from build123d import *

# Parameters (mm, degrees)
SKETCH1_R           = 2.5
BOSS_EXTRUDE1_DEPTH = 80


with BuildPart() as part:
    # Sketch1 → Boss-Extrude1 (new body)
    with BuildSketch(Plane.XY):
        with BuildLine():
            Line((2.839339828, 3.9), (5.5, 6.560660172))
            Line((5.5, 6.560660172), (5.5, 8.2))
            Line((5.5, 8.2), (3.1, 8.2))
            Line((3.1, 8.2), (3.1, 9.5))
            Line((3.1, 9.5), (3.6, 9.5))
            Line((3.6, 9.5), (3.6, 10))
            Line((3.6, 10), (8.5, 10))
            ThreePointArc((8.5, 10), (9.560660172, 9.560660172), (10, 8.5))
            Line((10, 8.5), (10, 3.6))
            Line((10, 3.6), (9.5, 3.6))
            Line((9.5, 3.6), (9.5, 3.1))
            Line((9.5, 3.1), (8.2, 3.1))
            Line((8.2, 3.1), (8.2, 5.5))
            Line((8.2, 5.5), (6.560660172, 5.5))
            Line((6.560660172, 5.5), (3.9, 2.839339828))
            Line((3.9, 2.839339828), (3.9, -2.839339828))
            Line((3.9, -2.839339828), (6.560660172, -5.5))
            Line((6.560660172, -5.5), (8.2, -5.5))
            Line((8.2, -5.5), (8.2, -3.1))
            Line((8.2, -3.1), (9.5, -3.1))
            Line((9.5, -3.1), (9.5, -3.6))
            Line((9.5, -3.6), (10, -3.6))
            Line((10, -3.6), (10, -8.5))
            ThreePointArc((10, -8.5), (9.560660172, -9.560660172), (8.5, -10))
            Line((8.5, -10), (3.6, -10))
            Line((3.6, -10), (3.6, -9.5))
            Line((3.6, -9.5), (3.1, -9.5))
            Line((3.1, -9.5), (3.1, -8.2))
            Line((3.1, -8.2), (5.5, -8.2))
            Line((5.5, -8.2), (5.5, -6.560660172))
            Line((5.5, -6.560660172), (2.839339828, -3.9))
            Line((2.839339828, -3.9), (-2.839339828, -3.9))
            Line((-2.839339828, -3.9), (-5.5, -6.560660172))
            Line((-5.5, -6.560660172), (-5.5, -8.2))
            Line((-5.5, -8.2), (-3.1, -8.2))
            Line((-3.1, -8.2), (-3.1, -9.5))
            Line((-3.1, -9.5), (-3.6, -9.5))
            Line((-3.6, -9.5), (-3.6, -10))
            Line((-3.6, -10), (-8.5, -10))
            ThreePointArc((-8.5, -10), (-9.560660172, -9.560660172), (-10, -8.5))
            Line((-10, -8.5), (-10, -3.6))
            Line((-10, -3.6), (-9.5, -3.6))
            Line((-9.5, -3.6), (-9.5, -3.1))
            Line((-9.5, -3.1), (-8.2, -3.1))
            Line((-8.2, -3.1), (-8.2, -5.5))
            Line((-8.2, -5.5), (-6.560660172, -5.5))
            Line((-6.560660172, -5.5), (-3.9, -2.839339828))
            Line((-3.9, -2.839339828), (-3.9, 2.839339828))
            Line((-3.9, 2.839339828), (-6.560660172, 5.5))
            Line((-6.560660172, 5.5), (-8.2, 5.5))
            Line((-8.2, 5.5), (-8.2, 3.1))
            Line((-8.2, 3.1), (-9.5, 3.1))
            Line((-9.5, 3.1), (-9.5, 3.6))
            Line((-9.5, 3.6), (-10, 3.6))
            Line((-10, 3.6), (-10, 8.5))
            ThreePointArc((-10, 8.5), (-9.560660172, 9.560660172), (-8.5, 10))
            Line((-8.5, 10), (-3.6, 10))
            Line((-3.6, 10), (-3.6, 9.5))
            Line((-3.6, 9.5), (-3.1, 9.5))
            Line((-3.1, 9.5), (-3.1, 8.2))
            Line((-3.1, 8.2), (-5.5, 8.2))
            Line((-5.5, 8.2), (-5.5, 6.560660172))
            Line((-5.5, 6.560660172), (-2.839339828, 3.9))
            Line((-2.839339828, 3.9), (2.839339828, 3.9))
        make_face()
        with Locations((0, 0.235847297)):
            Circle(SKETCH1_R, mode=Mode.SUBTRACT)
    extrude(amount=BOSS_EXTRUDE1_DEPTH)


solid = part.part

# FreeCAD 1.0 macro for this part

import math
import FreeCAD as App
import Part
import Sketcher
from FreeCAD import Vector
Q = App.Units.Quantity

doc = App.newDocument("Part")
body = doc.addObject("PartDesign::Body", "Body")

sketch1 = body.newObject("Sketcher::SketchObject", "Sketch")
sketch1.AttachmentSupport = (doc.getObject("XY_Plane"), [""])
sketch1.MapMode = "FlatFace"
sketch1.addGeometry([
    Part.LineSegment(Vector(5.5, 6.6, 0), Vector(2.8, 3.9, 0)),
    Part.LineSegment(Vector(2.8, 3.9, 0), Vector(-2.8, 3.9, 0)),
    Part.LineSegment(Vector(-2.8, 3.9, 0), Vector(-5.5, 6.6, 0)),
    Part.LineSegment(Vector(-5.5, 6.6, 0), Vector(-5.5, 8.2, 0)),
    Part.LineSegment(Vector(-5.5, 8.2, 0), Vector(-3.1, 8.2, 0)),
    Part.LineSegment(Vector(-3.1, 8.2, 0), Vector(-3.1, 9.5, 0)),
    Part.LineSegment(Vector(-3.1, 9.5, 0), Vector(-3.6, 9.5, 0)),
    Part.LineSegment(Vector(-3.6, 9.5, 0), Vector(-3.6, 10, 0)),
    Part.LineSegment(Vector(-3.6, 10, 0), Vector(-8.5, 10, 0)),
    Part.ArcOfCircle(Part.Circle(Vector(-8.5, 8.5, 0), Vector(0, 0, 1), 1.5), math.radians(90), math.radians(180)),
    Part.LineSegment(Vector(-10, 8.5, 0), Vector(-10, 3.6, 0)),
    Part.LineSegment(Vector(-10, 3.6, 0), Vector(-9.5, 3.6, 0)),
    Part.LineSegment(Vector(-9.5, 3.6, 0), Vector(-9.5, 3.1, 0)),
    Part.LineSegment(Vector(-9.5, 3.1, 0), Vector(-8.2, 3.1, 0)),
    Part.LineSegment(Vector(-8.2, 3.1, 0), Vector(-8.2, 5.5, 0)),
    Part.LineSegment(Vector(-8.2, 5.5, 0), Vector(-6.6, 5.5, 0)),
    Part.LineSegment(Vector(-6.6, 5.5, 0), Vector(-3.9, 2.8, 0)),
    Part.LineSegment(Vector(-3.9, 2.8, 0), Vector(-3.9, -2.8, 0)),
    Part.LineSegment(Vector(-3.9, -2.8, 0), Vector(-6.6, -5.5, 0)),
    Part.LineSegment(Vector(-6.6, -5.5, 0), Vector(-8.2, -5.5, 0)),
    Part.LineSegment(Vector(-8.2, -5.5, 0), Vector(-8.2, -3.1, 0)),
    Part.LineSegment(Vector(-8.2, -3.1, 0), Vector(-9.5, -3.1, 0)),
    Part.LineSegment(Vector(-9.5, -3.1, 0), Vector(-9.5, -3.6, 0)),
    Part.LineSegment(Vector(-9.5, -3.6, 0), Vector(-10, -3.6, 0)),
    Part.LineSegment(Vector(-10, -3.6, 0), Vector(-10, -8.5, 0)),
    Part.ArcOfCircle(Part.Circle(Vector(-8.5, -8.5, 0), Vector(0, 0, 1), 1.5), math.radians(180), math.radians(270)),
    Part.LineSegment(Vector(-8.5, -10, 0), Vector(-3.6, -10, 0)),
    Part.LineSegment(Vector(-3.6, -10, 0), Vector(-3.6, -9.5, 0)),
    Part.LineSegment(Vector(-3.6, -9.5, 0), Vector(-3.1, -9.5, 0)),
    Part.LineSegment(Vector(-3.1, -9.5, 0), Vector(-3.1, -8.2, 0)),
    Part.LineSegment(Vector(-3.1, -8.2, 0), Vector(-5.5, -8.2, 0)),
    Part.LineSegment(Vector(-5.5, -8.2, 0), Vector(-5.5, -6.6, 0)),
    Part.LineSegment(Vector(-5.5, -6.6, 0), Vector(-2.8, -3.9, 0)),
    Part.LineSegment(Vector(-2.8, -3.9, 0), Vector(2.8, -3.9, 0)),
    Part.LineSegment(Vector(2.8, -3.9, 0), Vector(5.5, -6.6, 0)),
    Part.LineSegment(Vector(5.5, -6.6, 0), Vector(5.5, -8.2, 0)),
    Part.LineSegment(Vector(5.5, -8.2, 0), Vector(3.1, -8.2, 0)),
    Part.LineSegment(Vector(3.1, -8.2, 0), Vector(3.1, -9.5, 0)),
    Part.LineSegment(Vector(3.1, -9.5, 0), Vector(3.6, -9.5, 0)),
    Part.LineSegment(Vector(3.6, -9.5, 0), Vector(3.6, -10, 0)),
    Part.LineSegment(Vector(3.6, -10, 0), Vector(8.5, -10, 0)),
    Part.ArcOfCircle(Part.Circle(Vector(8.5, -8.5, 0), Vector(0, 0, 1), 1.5), math.radians(-90), math.radians(0)),
    Part.LineSegment(Vector(10, -8.5, 0), Vector(10, -3.6, 0)),
    Part.LineSegment(Vector(10, -3.6, 0), Vector(9.5, -3.6, 0)),
    Part.LineSegment(Vector(9.5, -3.6, 0), Vector(9.5, -3.1, 0)),
    Part.LineSegment(Vector(9.5, -3.1, 0), Vector(8.2, -3.1, 0)),
    Part.LineSegment(Vector(8.2, -3.1, 0), Vector(8.2, -5.5, 0)),
    Part.LineSegment(Vector(8.2, -5.5, 0), Vector(6.6, -5.5, 0)),
    Part.LineSegment(Vector(6.6, -5.5, 0), Vector(3.9, -2.8, 0)),
    Part.LineSegment(Vector(3.9, -2.8, 0), Vector(3.9, 2.8, 0)),
    Part.LineSegment(Vector(3.9, 2.8, 0), Vector(6.6, 5.5, 0)),
    Part.LineSegment(Vector(6.6, 5.5, 0), Vector(8.2, 5.5, 0)),
    Part.LineSegment(Vector(8.2, 5.5, 0), Vector(8.2, 3.1, 0)),
    Part.LineSegment(Vector(8.2, 3.1, 0), Vector(9.5, 3.1, 0)),
    Part.LineSegment(Vector(9.5, 3.1, 0), Vector(9.5, 3.6, 0)),
    Part.LineSegment(Vector(9.5, 3.6, 0), Vector(10, 3.6, 0)),
    Part.LineSegment(Vector(10, 3.6, 0), Vector(10, 8.5, 0)),
    Part.ArcOfCircle(Part.Circle(Vector(8.5, 8.5, 0), Vector(0, 0, 1), 1.5), math.radians(0), math.radians(90)),
    Part.LineSegment(Vector(8.5, 10, 0), Vector(3.6, 10, 0)),
    Part.LineSegment(Vector(3.6, 10, 0), Vector(3.6, 9.5, 0)),
    Part.LineSegment(Vector(3.6, 9.5, 0), Vector(3.1, 9.5, 0)),
    Part.LineSegment(Vector(3.1, 9.5, 0), Vector(3.1, 8.2, 0)),
    Part.LineSegment(Vector(3.1, 8.2, 0), Vector(5.5, 8.2, 0)),
    Part.LineSegment(Vector(5.5, 8.2, 0), Vector(5.5, 6.6, 0)),
    Part.Circle(Vector(0, 0.2, 0), Vector(0, 0, 1), 2.5),
], False)
sketch1.addConstraint([
    Sketcher.Constraint("Coincident", 0, 2, 1, 1),
    Sketcher.Constraint("Coincident", 1, 2, 2, 1),
    Sketcher.Constraint("Coincident", 2, 2, 3, 1),
    Sketcher.Constraint("Coincident", 3, 2, 4, 1),
    Sketcher.Constraint("Coincident", 4, 2, 5, 1),
    Sketcher.Constraint("Coincident", 5, 2, 6, 1),
    Sketcher.Constraint("Coincident", 6, 2, 7, 1),
    Sketcher.Constraint("Coincident", 7, 2, 8, 1),
    Sketcher.Constraint("Tangent", 8, 2, 9, 1),
    Sketcher.Constraint("Tangent", 9, 2, 10, 1),
    Sketcher.Constraint("Coincident", 10, 2, 11, 1),
    Sketcher.Constraint("Coincident", 11, 2, 12, 1),
    Sketcher.Constraint("Coincident", 12, 2, 13, 1),
    Sketcher.Constraint("Coincident", 13, 2, 14, 1),
    Sketcher.Constraint("Coincident", 14, 2, 15, 1),
    Sketcher.Constraint("Coincident", 15, 2, 16, 1),
    Sketcher.Constraint("Coincident", 16, 2, 17, 1),
    Sketcher.Constraint("Coincident", 17, 2, 18, 1),
    Sketcher.Constraint("Coincident", 18, 2, 19, 1),
    Sketcher.Constraint("Coincident", 19, 2, 20, 1),
    Sketcher.Constraint("Coincident", 20, 2, 21, 1),
    Sketcher.Constraint("Coincident", 21, 2, 22, 1),
    Sketcher.Constraint("Coincident", 22, 2, 23, 1),
    Sketcher.Constraint("Coincident", 23, 2, 24, 1),
    Sketcher.Constraint("Tangent", 24, 2, 25, 1),
    Sketcher.Constraint("Tangent", 25, 2, 26, 1),
    Sketcher.Constraint("Coincident", 26, 2, 27, 1),
    Sketcher.Constraint("Coincident", 27, 2, 28, 1),
    Sketcher.Constraint("Coincident", 28, 2, 29, 1),
    Sketcher.Constraint("Coincident", 29, 2, 30, 1),
    Sketcher.Constraint("Coincident", 30, 2, 31, 1),
    Sketcher.Constraint("Coincident", 31, 2, 32, 1),
    Sketcher.Constraint("Coincident", 32, 2, 33, 1),
    Sketcher.Constraint("Coincident", 33, 2, 34, 1),
    Sketcher.Constraint("Coincident", 34, 2, 35, 1),
    Sketcher.Constraint("Coincident", 35, 2, 36, 1),
    Sketcher.Constraint("Coincident", 36, 2, 37, 1),
    Sketcher.Constraint("Coincident", 37, 2, 38, 1),
    Sketcher.Constraint("Coincident", 38, 2, 39, 1),
    Sketcher.Constraint("Coincident", 39, 2, 40, 1),
    Sketcher.Constraint("Tangent", 40, 2, 41, 1),
    Sketcher.Constraint("Tangent", 41, 2, 42, 1),
    Sketcher.Constraint("Coincident", 42, 2, 43, 1),
    Sketcher.Constraint("Coincident", 43, 2, 44, 1),
    Sketcher.Constraint("Coincident", 44, 2, 45, 1),
    Sketcher.Constraint("Coincident", 45, 2, 46, 1),
    Sketcher.Constraint("Coincident", 46, 2, 47, 1),
    Sketcher.Constraint("Coincident", 47, 2, 48, 1),
    Sketcher.Constraint("Coincident", 48, 2, 49, 1),
    Sketcher.Constraint("Coincident", 49, 2, 50, 1),
    Sketcher.Constraint("Coincident", 50, 2, 51, 1),
    Sketcher.Constraint("Coincident", 51, 2, 52, 1),
    Sketcher.Constraint("Coincident", 52, 2, 53, 1),
    Sketcher.Constraint("Coincident", 53, 2, 54, 1),
    Sketcher.Constraint("Coincident", 54, 2, 55, 1),
    Sketcher.Constraint("Coincident", 55, 2, 56, 1),
    Sketcher.Constraint("Tangent", 56, 2, 57, 1),
    Sketcher.Constraint("Tangent", 57, 2, 58, 1),
    Sketcher.Constraint("Coincident", 58, 2, 59, 1),
    Sketcher.Constraint("Coincident", 59, 2, 60, 1),
    Sketcher.Constraint("Coincident", 60, 2, 61, 1),
    Sketcher.Constraint("Coincident", 61, 2, 62, 1),
    Sketcher.Constraint("Coincident", 62, 2, 63, 1),
    Sketcher.Constraint("Coincident", 63, 2, 0, 1),
    Sketcher.Constraint("Horizontal", 1),
    Sketcher.Constraint("Vertical", 3),
    Sketcher.Constraint("Horizontal", 4),
    Sketcher.Constraint("Vertical", 5),
    Sketcher.Constraint("Horizontal", 6),
    Sketcher.Constraint("Vertical", 7),
    Sketcher.Constraint("Horizontal", 8),
    Sketcher.Constraint("Vertical", 10),
    Sketcher.Constraint("Horizontal", 11),
    Sketcher.Constraint("Vertical", 12),
    Sketcher.Constraint("Horizontal", 13),
    Sketcher.Constraint("Vertical", 14),
    Sketcher.Constraint("Horizontal", 15),
    Sketcher.Constraint("Vertical", 17),
    Sketcher.Constraint("Horizontal", 19),
    Sketcher.Constraint("Vertical", 20),
    Sketcher.Constraint("Horizontal", 21),
    Sketcher.Constraint("Vertical", 22),
    Sketcher.Constraint("Horizontal", 23),
    Sketcher.Constraint("Vertical", 24),
    Sketcher.Constraint("Horizontal", 26),
    Sketcher.Constraint("Vertical", 27),
    Sketcher.Constraint("Horizontal", 28),
    Sketcher.Constraint("Vertical", 29),
    Sketcher.Constraint("Horizontal", 30),
    Sketcher.Constraint("Vertical", 31),
    Sketcher.Constraint("Horizontal", 33),
    Sketcher.Constraint("Vertical", 35),
    Sketcher.Constraint("Horizontal", 36),
    Sketcher.Constraint("Vertical", 37),
    Sketcher.Constraint("Horizontal", 38),
    Sketcher.Constraint("Vertical", 39),
    Sketcher.Constraint("Horizontal", 40),
    Sketcher.Constraint("Vertical", 42),
    Sketcher.Constraint("Horizontal", 43),
    Sketcher.Constraint("Vertical", 44),
    Sketcher.Constraint("Horizontal", 45),
    Sketcher.Constraint("Vertical", 46),
    Sketcher.Constraint("Horizontal", 47),
    Sketcher.Constraint("Vertical", 49),
    Sketcher.Constraint("Horizontal", 51),
    Sketcher.Constraint("Vertical", 52),
    Sketcher.Constraint("Horizontal", 53),
    Sketcher.Constraint("Vertical", 54),
    Sketcher.Constraint("Horizontal", 55),
    Sketcher.Constraint("Vertical", 56),
    Sketcher.Constraint("Horizontal", 58),
    Sketcher.Constraint("Vertical", 59),
    Sketcher.Constraint("Horizontal", 60),
    Sketcher.Constraint("Vertical", 61),
    Sketcher.Constraint("Horizontal", 62),
    Sketcher.Constraint("Vertical", 63),
    Sketcher.Constraint("Equal", 9, 25),
    Sketcher.Constraint("Equal", 25, 41),
    Sketcher.Constraint("Equal", 41, 57),
    Sketcher.Constraint("Symmetric", 9, 3, 41, 3, -1, 1),
    Sketcher.Constraint("Symmetric", 25, 3, 57, 3, -1, 1),
    Sketcher.Constraint("Symmetric", 0, 2, 32, 2, -1, 1),
    Sketcher.Constraint("Symmetric", 2, 2, 34, 2, -1, 1),
    Sketcher.Constraint("Symmetric", 4, 2, 36, 2, -1, 1),
    Sketcher.Constraint("Symmetric", 6, 2, 38, 2, -1, 1),
    Sketcher.Constraint("Symmetric", 11, 2, 43, 2, -1, 1),
    Sketcher.Constraint("Symmetric", 13, 2, 45, 2, -1, 1),
    Sketcher.Constraint("Symmetric", 15, 2, 47, 2, -1, 1),
    Sketcher.Constraint("Symmetric", 16, 2, 48, 2, -1, 1),
    Sketcher.Constraint("Symmetric", 18, 2, 50, 2, -1, 1),
    Sketcher.Constraint("Symmetric", 20, 2, 52, 2, -1, 1),
    Sketcher.Constraint("Symmetric", 22, 2, 54, 2, -1, 1),
    Sketcher.Constraint("Symmetric", 27, 2, 59, 2, -1, 1),
    Sketcher.Constraint("Symmetric", 29, 2, 61, 2, -1, 1),
    Sketcher.Constraint("Symmetric", 31, 2, 63, 2, -1, 1),
    Sketcher.Constraint("Symmetric", 25, 3, 41, 3, -2),
    Sketcher.Constraint("Symmetric", 31, 2, 34, 2, -2),
    Sketcher.Constraint("Symmetric", 29, 2, 36, 2, -2),
    Sketcher.Constraint("Symmetric", 27, 2, 38, 2, -2),
    Sketcher.Constraint("Symmetric", 22, 2, 43, 2, -2),
    Sketcher.Constraint("Symmetric", 20, 2, 45, 2, -2),
    Sketcher.Constraint("Symmetric", 18, 2, 47, 2, -2),
    Sketcher.Constraint("PointOnObject", 64, 3, -2),
    Sketcher.Constraint("Perpendicular", 0, 2),
    Sketcher.Constraint("Parallel", 2, 16),
    Sketcher.Constraint("Perpendicular", 16, 18),
    Sketcher.Constraint("Perpendicular", 32, 34),
    Sketcher.Constraint("Perpendicular", 48, 50),
    Sketcher.Constraint("Horizontal", 17, 2, 48, 2),
    Sketcher.Constraint("Equal", 6, 11),
    Sketcher.Constraint("Equal", 51, 3),
    Sketcher.Constraint("Equal", 53, 5),
    Sketcher.Constraint("Equal", 60, 7),
    Sketcher.Constraint("Equal", 58, 10),
    Sketcher.Constraint("Equal", 7, 12),
    Sketcher.Constraint("Equal", 62, 14),
    Sketcher.Constraint("Equal", 33, 17),
    Sketcher.Constraint("Equal", 2, 16),
    Sketcher.Constraint("Diameter", 64, Q("5 mm")),
    Sketcher.Constraint("Radius", 9, Q("1.5 mm")),
    Sketcher.Constraint("DistanceX", 4, 1, 4, 2, Q("2.4 mm")),
    Sketcher.Constraint("DistanceX", 6, 2, 6, 1, Q("0.5 mm")),
    Sketcher.Constraint("DistanceX", 8, 2, 8, 1, Q("4.9 mm")),
    Sketcher.Constraint("DistanceX", 13, 1, 13, 2, Q("1.3 mm")),
    Sketcher.Constraint("DistanceY", -1, 1, 7, 2, Q("10 mm")),
    Sketcher.Constraint("DistanceY", -1, 1, 0, 2, Q("3.9 mm")),
    Sketcher.Constraint("DistanceX", 1, 2, 1, 1, Q("5.67868 mm")),
    Sketcher.Constraint("DistanceY", -1, 1, 64, 3, Q("0.235847 mm")),
])
pad1 = body.newObject("PartDesign::Pad", "Pad")
pad1.Profile = sketch1
pad1.Length = 80

doc.recompute()
